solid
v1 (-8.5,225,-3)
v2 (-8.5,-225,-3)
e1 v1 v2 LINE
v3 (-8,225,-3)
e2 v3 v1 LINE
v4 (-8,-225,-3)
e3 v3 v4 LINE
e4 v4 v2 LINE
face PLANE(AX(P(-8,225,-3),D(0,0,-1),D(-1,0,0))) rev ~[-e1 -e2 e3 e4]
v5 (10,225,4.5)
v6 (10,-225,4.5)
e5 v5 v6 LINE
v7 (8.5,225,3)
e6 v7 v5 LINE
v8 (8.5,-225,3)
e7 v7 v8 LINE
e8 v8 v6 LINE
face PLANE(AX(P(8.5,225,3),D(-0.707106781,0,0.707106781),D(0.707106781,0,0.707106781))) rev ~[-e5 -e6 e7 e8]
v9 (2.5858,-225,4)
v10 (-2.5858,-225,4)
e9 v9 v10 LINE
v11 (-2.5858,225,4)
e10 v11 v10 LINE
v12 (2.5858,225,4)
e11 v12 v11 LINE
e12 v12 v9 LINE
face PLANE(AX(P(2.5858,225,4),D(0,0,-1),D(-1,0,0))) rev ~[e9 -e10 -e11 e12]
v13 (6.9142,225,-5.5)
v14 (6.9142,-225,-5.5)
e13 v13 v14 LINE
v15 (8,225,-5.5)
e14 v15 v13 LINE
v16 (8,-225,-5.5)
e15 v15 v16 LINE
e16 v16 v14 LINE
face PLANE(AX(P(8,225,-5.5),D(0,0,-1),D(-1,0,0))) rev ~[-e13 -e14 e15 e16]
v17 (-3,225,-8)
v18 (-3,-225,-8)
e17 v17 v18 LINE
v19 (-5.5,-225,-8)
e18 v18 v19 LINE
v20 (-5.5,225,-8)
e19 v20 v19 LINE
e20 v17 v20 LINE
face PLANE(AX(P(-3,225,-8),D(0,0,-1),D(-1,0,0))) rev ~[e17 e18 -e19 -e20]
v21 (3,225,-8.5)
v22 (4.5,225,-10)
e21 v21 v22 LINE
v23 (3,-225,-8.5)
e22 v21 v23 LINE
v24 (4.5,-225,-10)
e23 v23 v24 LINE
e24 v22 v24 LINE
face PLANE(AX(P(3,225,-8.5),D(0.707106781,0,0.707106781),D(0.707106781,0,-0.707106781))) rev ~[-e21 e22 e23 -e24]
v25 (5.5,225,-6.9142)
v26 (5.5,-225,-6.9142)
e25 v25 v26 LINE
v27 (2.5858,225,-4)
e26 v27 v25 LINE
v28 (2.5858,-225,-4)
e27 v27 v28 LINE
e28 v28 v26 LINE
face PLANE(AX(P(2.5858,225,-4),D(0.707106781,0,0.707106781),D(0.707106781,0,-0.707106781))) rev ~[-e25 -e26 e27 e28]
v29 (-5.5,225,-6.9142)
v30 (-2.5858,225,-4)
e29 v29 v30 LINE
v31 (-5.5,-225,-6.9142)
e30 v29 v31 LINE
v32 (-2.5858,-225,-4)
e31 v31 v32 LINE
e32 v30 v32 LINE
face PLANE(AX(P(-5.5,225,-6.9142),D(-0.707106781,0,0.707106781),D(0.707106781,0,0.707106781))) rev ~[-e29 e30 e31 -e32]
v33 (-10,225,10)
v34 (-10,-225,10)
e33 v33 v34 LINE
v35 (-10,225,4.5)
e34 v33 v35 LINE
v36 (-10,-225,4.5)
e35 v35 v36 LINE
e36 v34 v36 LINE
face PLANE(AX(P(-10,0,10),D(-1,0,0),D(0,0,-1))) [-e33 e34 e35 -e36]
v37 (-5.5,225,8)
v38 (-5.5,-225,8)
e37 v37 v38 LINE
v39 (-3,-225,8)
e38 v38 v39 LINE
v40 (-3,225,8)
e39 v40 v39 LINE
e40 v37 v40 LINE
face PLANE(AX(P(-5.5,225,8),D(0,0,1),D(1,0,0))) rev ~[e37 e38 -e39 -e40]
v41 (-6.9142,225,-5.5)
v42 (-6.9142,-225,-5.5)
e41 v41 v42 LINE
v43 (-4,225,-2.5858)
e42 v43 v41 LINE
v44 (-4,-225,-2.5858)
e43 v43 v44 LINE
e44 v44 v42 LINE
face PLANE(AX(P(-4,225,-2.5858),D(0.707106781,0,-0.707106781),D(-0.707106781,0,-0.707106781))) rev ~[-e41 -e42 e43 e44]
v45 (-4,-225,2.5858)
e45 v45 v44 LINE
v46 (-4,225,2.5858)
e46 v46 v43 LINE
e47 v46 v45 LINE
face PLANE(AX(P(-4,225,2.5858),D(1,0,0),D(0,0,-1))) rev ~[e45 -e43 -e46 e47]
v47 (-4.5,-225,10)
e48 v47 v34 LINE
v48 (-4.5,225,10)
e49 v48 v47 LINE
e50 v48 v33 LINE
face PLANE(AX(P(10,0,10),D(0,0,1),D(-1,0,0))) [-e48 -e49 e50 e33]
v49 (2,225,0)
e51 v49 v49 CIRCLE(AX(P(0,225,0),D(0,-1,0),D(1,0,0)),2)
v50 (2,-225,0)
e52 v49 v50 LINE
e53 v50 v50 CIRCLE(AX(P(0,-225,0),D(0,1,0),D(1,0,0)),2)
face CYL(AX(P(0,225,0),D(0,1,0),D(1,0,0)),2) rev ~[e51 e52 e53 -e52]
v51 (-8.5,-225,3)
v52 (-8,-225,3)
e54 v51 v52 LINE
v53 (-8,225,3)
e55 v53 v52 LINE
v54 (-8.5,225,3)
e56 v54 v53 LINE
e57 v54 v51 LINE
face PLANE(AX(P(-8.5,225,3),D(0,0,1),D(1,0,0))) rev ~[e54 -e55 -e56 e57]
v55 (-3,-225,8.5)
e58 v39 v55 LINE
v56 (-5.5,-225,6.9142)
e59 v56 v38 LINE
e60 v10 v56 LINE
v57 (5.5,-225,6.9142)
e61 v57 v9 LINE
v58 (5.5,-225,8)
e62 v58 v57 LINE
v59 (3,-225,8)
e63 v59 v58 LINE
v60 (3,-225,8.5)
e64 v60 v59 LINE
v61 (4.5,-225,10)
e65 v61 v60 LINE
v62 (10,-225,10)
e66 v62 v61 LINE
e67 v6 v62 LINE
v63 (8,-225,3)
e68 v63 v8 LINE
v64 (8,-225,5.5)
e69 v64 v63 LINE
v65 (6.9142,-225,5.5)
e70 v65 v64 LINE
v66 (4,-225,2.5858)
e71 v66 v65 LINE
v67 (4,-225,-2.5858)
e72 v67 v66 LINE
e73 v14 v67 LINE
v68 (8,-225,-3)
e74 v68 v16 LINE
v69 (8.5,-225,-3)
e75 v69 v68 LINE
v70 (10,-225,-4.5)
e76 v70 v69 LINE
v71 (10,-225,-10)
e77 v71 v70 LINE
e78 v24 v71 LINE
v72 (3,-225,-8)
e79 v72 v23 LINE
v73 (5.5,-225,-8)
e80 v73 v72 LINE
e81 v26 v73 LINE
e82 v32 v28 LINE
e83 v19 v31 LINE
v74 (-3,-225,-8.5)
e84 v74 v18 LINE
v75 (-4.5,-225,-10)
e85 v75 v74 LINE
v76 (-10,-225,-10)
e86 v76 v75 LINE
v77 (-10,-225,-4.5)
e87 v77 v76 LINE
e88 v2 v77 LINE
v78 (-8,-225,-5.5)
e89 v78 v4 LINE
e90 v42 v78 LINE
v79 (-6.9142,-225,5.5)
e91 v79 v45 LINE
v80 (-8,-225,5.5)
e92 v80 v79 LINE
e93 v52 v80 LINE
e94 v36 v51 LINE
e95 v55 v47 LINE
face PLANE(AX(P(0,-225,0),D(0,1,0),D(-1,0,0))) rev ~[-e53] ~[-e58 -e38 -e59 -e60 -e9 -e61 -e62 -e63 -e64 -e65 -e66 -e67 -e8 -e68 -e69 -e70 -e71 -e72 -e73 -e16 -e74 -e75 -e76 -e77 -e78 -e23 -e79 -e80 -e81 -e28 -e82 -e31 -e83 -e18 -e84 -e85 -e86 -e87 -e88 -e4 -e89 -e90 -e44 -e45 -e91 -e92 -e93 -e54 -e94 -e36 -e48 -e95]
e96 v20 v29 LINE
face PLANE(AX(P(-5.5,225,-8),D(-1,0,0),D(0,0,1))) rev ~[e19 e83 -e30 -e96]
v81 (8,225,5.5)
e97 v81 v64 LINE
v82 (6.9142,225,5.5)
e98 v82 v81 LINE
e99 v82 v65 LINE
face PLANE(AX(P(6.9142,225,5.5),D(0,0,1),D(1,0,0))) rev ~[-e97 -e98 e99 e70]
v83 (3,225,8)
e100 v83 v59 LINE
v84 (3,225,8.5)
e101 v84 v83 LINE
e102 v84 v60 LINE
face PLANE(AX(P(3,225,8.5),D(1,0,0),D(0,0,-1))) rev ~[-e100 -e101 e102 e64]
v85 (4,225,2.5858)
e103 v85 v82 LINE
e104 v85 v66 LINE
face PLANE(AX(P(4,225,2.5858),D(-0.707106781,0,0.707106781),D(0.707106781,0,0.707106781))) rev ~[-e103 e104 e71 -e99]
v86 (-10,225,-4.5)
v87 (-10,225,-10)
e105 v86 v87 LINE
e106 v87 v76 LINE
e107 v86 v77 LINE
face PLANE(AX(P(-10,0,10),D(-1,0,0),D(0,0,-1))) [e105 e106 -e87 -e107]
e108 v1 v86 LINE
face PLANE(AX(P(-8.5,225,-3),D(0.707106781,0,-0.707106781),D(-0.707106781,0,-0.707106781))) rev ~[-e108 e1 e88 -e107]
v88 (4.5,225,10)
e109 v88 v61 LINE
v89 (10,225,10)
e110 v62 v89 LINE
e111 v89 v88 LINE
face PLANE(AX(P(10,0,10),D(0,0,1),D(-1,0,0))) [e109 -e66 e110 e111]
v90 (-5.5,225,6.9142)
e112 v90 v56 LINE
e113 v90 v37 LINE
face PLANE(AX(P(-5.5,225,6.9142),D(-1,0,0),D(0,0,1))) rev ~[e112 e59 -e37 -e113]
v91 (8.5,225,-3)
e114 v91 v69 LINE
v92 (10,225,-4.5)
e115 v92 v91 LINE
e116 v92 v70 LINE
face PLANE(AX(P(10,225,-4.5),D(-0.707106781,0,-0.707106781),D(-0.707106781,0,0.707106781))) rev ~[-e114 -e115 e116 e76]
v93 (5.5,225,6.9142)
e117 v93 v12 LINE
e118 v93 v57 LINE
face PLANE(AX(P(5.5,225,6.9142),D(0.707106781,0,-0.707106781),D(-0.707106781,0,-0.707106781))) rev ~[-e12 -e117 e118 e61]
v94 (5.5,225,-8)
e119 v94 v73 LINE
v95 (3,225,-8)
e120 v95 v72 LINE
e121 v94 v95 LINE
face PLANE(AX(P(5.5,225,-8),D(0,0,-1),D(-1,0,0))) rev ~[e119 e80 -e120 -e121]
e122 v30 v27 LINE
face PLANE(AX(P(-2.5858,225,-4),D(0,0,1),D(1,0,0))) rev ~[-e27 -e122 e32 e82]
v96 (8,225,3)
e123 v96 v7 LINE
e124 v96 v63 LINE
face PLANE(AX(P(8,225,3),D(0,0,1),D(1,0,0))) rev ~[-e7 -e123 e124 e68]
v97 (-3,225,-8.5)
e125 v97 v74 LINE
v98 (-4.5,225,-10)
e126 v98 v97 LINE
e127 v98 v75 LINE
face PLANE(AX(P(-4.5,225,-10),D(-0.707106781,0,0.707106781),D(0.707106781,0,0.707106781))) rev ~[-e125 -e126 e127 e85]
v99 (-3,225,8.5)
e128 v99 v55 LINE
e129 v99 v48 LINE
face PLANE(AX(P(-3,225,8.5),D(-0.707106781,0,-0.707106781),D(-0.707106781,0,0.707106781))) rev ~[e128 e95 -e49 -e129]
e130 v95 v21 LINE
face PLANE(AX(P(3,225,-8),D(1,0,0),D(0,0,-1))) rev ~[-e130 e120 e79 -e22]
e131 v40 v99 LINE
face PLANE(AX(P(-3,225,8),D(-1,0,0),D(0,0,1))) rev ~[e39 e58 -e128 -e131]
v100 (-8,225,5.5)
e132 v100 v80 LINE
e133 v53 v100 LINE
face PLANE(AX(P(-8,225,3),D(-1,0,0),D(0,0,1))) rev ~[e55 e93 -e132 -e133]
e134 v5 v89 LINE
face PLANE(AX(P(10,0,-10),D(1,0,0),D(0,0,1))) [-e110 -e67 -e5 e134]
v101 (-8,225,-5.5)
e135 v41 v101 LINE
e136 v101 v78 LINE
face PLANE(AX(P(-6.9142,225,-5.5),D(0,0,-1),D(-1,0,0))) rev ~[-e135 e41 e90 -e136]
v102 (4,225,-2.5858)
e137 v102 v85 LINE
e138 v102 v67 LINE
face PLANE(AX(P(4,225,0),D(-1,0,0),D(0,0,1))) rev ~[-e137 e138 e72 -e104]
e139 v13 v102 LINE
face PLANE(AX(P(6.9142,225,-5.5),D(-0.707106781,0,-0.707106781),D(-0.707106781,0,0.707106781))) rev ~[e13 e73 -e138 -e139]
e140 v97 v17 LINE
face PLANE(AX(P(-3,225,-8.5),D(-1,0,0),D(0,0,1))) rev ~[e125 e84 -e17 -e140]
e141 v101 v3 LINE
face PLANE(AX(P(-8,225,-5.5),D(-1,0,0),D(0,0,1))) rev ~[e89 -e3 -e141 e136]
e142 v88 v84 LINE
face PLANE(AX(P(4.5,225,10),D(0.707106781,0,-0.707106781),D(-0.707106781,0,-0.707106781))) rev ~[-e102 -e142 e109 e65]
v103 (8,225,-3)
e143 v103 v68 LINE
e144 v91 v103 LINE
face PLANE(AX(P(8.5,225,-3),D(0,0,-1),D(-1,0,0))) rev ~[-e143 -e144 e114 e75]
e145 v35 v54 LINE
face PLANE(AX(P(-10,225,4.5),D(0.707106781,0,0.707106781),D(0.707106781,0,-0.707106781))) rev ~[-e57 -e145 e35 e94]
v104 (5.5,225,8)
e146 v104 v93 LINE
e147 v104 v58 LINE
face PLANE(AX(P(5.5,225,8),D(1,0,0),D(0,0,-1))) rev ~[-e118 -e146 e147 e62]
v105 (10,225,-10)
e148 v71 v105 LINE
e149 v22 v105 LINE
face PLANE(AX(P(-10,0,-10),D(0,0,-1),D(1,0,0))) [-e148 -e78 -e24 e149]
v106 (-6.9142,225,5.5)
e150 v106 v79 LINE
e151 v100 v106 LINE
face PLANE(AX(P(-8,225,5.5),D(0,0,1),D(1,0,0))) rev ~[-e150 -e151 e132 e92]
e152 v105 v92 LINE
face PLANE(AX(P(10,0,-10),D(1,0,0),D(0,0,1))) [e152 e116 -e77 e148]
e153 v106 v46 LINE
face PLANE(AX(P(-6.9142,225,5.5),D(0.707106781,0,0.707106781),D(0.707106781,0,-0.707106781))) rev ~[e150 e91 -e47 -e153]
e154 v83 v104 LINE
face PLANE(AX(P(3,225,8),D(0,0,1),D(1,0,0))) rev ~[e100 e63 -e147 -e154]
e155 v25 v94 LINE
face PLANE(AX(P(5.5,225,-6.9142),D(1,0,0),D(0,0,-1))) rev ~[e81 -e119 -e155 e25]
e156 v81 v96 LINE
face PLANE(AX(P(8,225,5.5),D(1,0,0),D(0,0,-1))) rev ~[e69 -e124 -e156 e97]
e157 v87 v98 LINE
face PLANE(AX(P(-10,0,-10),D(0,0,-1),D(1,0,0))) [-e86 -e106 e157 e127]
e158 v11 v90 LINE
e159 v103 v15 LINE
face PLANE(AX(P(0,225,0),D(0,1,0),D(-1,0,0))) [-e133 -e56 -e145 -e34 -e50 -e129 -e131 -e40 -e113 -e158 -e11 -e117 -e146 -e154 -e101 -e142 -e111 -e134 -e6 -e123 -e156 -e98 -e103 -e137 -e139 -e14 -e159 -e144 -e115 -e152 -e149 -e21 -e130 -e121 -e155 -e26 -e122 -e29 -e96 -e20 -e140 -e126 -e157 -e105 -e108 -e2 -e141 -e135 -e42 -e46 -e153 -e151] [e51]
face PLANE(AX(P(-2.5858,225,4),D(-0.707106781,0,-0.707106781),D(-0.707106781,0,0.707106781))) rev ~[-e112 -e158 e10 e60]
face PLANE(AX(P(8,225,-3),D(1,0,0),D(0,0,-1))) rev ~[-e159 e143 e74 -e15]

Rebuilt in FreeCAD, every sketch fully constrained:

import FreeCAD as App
import Part
import Sketcher
from FreeCAD import Vector
Q = App.Units.Quantity

doc = App.newDocument("Part")
params = doc.addObject("Spreadsheet::Sheet", "Params")
for row, (alias, value) in enumerate([
    ("sketch1_width", "20 mm"),
    ("pad1_length", "450 mm"),
    ("sketch2_diameter", "4 mm"),
    ("sketch2_width", "9 mm"),
    ("sketch2_width2", "2.5 mm"),
], start=1):
    params.set(f"A{row}", alias)
    params.set(f"B{row}", "=" + value)
    params.setAlias(f"B{row}", alias)

body = doc.addObject("PartDesign::Body", "Body")

# Sketch on XZ plane
sketch1 = body.newObject("Sketcher::SketchObject", "Sketch")
sketch1.AttachmentSupport = (doc.getObject("XZ_Plane"), [""])
sketch1.MapMode = "FlatFace"
sketch1.addGeometry([
    Part.LineSegment(Vector(-10, 10, 0), Vector(10, 10, 0)),
    Part.LineSegment(Vector(10, 10, 0), Vector(10, -10, 0)),
    Part.LineSegment(Vector(10, -10, 0), Vector(-10, -10, 0)),
    Part.LineSegment(Vector(-10, -10, 0), Vector(-10, 10, 0)),
], False)
sketch1.addConstraint([
    Sketcher.Constraint("Coincident", 0, 2, 1, 1),
    Sketcher.Constraint("Coincident", 1, 2, 2, 1),
    Sketcher.Constraint("Coincident", 2, 2, 3, 1),
    Sketcher.Constraint("Coincident", 3, 2, 0, 1),
    Sketcher.Constraint("Horizontal", 0),
    Sketcher.Constraint("Vertical", 1),
    Sketcher.Constraint("Horizontal", 2),
    Sketcher.Constraint("Vertical", 3),
    Sketcher.Constraint("Symmetric", 0, 2, 2, 2, -1, 1),
    Sketcher.Constraint("Equal", 2, 1),
    Sketcher.Constraint("DistanceX", 0, 1, 0, 2, Q("20 mm")),
])
sketch1.setExpression("Constraints[10]", "Params.sketch1_width")
pad1 = body.newObject("PartDesign::Pad", "Pad")
pad1.Profile = sketch1
pad1.setExpression("Length", "Params.pad1_length")
pad1.Midplane = True

# Sketch on XZ plane
sketch2 = body.newObject("Sketcher::SketchObject", "Sketch001")
sketch2.AttachmentSupport = (doc.getObject("XZ_Plane"), [""])
sketch2.MapMode = "FlatFace"
sketch2.AttachmentOffset = App.Placement(Vector(0, 0, -225), App.Rotation())
sketch2.addGeometry([
    Part.LineSegment(Vector(-3, 8.5, 0), Vector(-4.5, 10, 0)),  # 0
    Part.LineSegment(Vector(-4.5, 10, 0), Vector(4.5, 10, 0)),  # 1
    Part.LineSegment(Vector(4.5, 10, 0), Vector(3, 8.5, 0)),  # 2
    Part.LineSegment(Vector(3, 8.5, 0), Vector(3, 8, 0)),  # 3
    Part.LineSegment(Vector(3, 8, 0), Vector(5.5, 8, 0)),  # 4
    Part.LineSegment(Vector(5.5, 8, 0), Vector(5.5, 6.9142, 0)),  # 5
    Part.LineSegment(Vector(5.5, 6.9142, 0), Vector(2.5858, 4, 0)),  # 6
    Part.LineSegment(Vector(2.5858, 4, 0), Vector(-2.5858, 4, 0)),  # 7
    Part.LineSegment(Vector(-2.5858, 4, 0), Vector(-5.5, 6.9142, 0)),  # 8
    Part.LineSegment(Vector(-5.5, 6.9142, 0), Vector(-5.5, 8, 0)),  # 9
    Part.LineSegment(Vector(-5.5, 8, 0), Vector(-3, 8, 0)),  # 10
    Part.LineSegment(Vector(-3, 8, 0), Vector(-3, 8.5, 0)),  # 11
    Part.LineSegment(Vector(-10, 4.5, 0), Vector(-8.5, 3, 0)),  # 12
    Part.LineSegment(Vector(-8.5, 3, 0), Vector(-8, 3, 0)),  # 13
    Part.LineSegment(Vector(-8, 3, 0), Vector(-8, 5.5, 0)),  # 14
    Part.LineSegment(Vector(-8, 5.5, 0), Vector(-6.9142, 5.5, 0)),  # 15
    Part.LineSegment(Vector(-6.9142, 5.5, 0), Vector(-4, 2.5858, 0)),  # 16
    Part.LineSegment(Vector(-4, 2.5858, 0), Vector(-4, -2.5858, 0)),  # 17
    Part.LineSegment(Vector(-4, -2.5858, 0), Vector(-6.9142, -5.5, 0)),  # 18
    Part.LineSegment(Vector(-6.9142, -5.5, 0), Vector(-8, -5.5, 0)),  # 19
    Part.LineSegment(Vector(-8, -5.5, 0), Vector(-8, -3, 0)),  # 20
    Part.LineSegment(Vector(-8, -3, 0), Vector(-8.5, -3, 0)),  # 21
    Part.LineSegment(Vector(-8.5, -3, 0), Vector(-10, -4.5, 0)),  # 22
    Part.LineSegment(Vector(-10, -4.5, 0), Vector(-10, 4.5, 0)),  # 23
    Part.LineSegment(Vector(8.5, 3, 0), Vector(10, 4.5, 0)),  # 24
    Part.LineSegment(Vector(10, 4.5, 0), Vector(10, -4.5, 0)),  # 25
    Part.LineSegment(Vector(10, -4.5, 0), Vector(8.5, -3, 0)),  # 26
    Part.LineSegment(Vector(8.5, -3, 0), Vector(8, -3, 0)),  # 27
    Part.LineSegment(Vector(8, -3, 0), Vector(8, -5.5, 0)),  # 28
    Part.LineSegment(Vector(8, -5.5, 0), Vector(6.9142, -5.5, 0)),  # 29
    Part.LineSegment(Vector(6.9142, -5.5, 0), Vector(4, -2.5858, 0)),  # 30
    Part.LineSegment(Vector(4, -2.5858, 0), Vector(4, 2.5858, 0)),  # 31
    Part.LineSegment(Vector(4, 2.5858, 0), Vector(6.9142, 5.5, 0)),  # 32
    Part.LineSegment(Vector(6.9142, 5.5, 0), Vector(8, 5.5, 0)),  # 33
    Part.LineSegment(Vector(8, 5.5, 0), Vector(8, 3, 0)),  # 34
    Part.LineSegment(Vector(8, 3, 0), Vector(8.5, 3, 0)),  # 35
    Part.Circle(Vector(0, 0, 0), Vector(0, 0, 1), 2),  # 36
    Part.LineSegment(Vector(4.5, -10, 0), Vector(-4.5, -10, 0)),  # 37
    Part.LineSegment(Vector(-4.5, -10, 0), Vector(-3, -8.5, 0)),  # 38
    Part.LineSegment(Vector(-3, -8.5, 0), Vector(-3, -8, 0)),  # 39
    Part.LineSegment(Vector(-3, -8, 0), Vector(-5.5, -8, 0)),  # 40
    Part.LineSegment(Vector(-5.5, -8, 0), Vector(-5.5, -6.9142, 0)),  # 41
    Part.LineSegment(Vector(-5.5, -6.9142, 0), Vector(-2.5858, -4, 0)),  # 42
    Part.LineSegment(Vector(-2.5858, -4, 0), Vector(2.5858, -4, 0)),  # 43
    Part.LineSegment(Vector(2.5858, -4, 0), Vector(5.5, -6.9142, 0)),  # 44
    Part.LineSegment(Vector(5.5, -6.9142, 0), Vector(5.5, -8, 0)),  # 45
    Part.LineSegment(Vector(5.5, -8, 0), Vector(3, -8, 0)),  # 46
    Part.LineSegment(Vector(3, -8, 0), Vector(3, -8.5, 0)),  # 47
    Part.LineSegment(Vector(3, -8.5, 0), Vector(4.5, -10, 0)),  # 48
], False)
sketch2.addConstraint([
    Sketcher.Constraint("Coincident", 0, 2, 1, 1),
    Sketcher.Constraint("Coincident", 1, 2, 2, 1),
    Sketcher.Constraint("Coincident", 2, 2, 3, 1),
    Sketcher.Constraint("Coincident", 3, 2, 4, 1),
    Sketcher.Constraint("Coincident", 4, 2, 5, 1),
    Sketcher.Constraint("Coincident", 5, 2, 6, 1),
    Sketcher.Constraint("Coincident", 6, 2, 7, 1),
    Sketcher.Constraint("Coincident", 7, 2, 8, 1),
    Sketcher.Constraint("Coincident", 8, 2, 9, 1),
    Sketcher.Constraint("Coincident", 9, 2, 10, 1),
    Sketcher.Constraint("Coincident", 10, 2, 11, 1),
    Sketcher.Constraint("Coincident", 11, 2, 0, 1),
    Sketcher.Constraint("Coincident", 12, 2, 13, 1),
    Sketcher.Constraint("Coincident", 13, 2, 14, 1),
    Sketcher.Constraint("Coincident", 14, 2, 15, 1),
    Sketcher.Constraint("Coincident", 15, 2, 16, 1),
    Sketcher.Constraint("Coincident", 16, 2, 17, 1),
    Sketcher.Constraint("Coincident", 17, 2, 18, 1),
    Sketcher.Constraint("Coincident", 18, 2, 19, 1),
    Sketcher.Constraint("Coincident", 19, 2, 20, 1),
    Sketcher.Constraint("Coincident", 20, 2, 21, 1),
    Sketcher.Constraint("Coincident", 21, 2, 22, 1),
    Sketcher.Constraint("Coincident", 22, 2, 23, 1),
    Sketcher.Constraint("Coincident", 23, 2, 12, 1),
    Sketcher.Constraint("Coincident", 24, 2, 25, 1),
    Sketcher.Constraint("Coincident", 25, 2, 26, 1),
    Sketcher.Constraint("Coincident", 26, 2, 27, 1),
    Sketcher.Constraint("Coincident", 27, 2, 28, 1),
    Sketcher.Constraint("Coincident", 28, 2, 29, 1),
    Sketcher.Constraint("Coincident", 29, 2, 30, 1),
    Sketcher.Constraint("Coincident", 30, 2, 31, 1),
    Sketcher.Constraint("Coincident", 31, 2, 32, 1),
    Sketcher.Constraint("Coincident", 32, 2, 33, 1),
    Sketcher.Constraint("Coincident", 33, 2, 34, 1),
    Sketcher.Constraint("Coincident", 34, 2, 35, 1),
    Sketcher.Constraint("Coincident", 35, 2, 24, 1),
    Sketcher.Constraint("Coincident", 37, 2, 38, 1),
    Sketcher.Constraint("Coincident", 38, 2, 39, 1),
    Sketcher.Constraint("Coincident", 39, 2, 40, 1),
    Sketcher.Constraint("Coincident", 40, 2, 41, 1),
    Sketcher.Constraint("Coincident", 41, 2, 42, 1),
    Sketcher.Constraint("Coincident", 42, 2, 43, 1),
    Sketcher.Constraint("Coincident", 43, 2, 44, 1),
    Sketcher.Constraint("Coincident", 44, 2, 45, 1),
    Sketcher.Constraint("Coincident", 45, 2, 46, 1),
    Sketcher.Constraint("Coincident", 46, 2, 47, 1),
    Sketcher.Constraint("Coincident", 47, 2, 48, 1),
    Sketcher.Constraint("Coincident", 48, 2, 37, 1),
    Sketcher.Constraint("Horizontal", 1),
    Sketcher.Constraint("Vertical", 3),
    Sketcher.Constraint("Horizontal", 4),
    Sketcher.Constraint("Vertical", 5),
    Sketcher.Constraint("Horizontal", 7),
    Sketcher.Constraint("Vertical", 9),
    Sketcher.Constraint("Horizontal", 10),
    Sketcher.Constraint("Vertical", 11),
    Sketcher.Constraint("Horizontal", 13),
    Sketcher.Constraint("Vertical", 14),
    Sketcher.Constraint("Horizontal", 15),
    Sketcher.Constraint("Vertical", 17),
    Sketcher.Constraint("Horizontal", 19),
    Sketcher.Constraint("Vertical", 20),
    Sketcher.Constraint("Horizontal", 21),
    Sketcher.Constraint("Vertical", 23),
    Sketcher.Constraint("Vertical", 25),
    Sketcher.Constraint("Horizontal", 27),
    Sketcher.Constraint("Vertical", 28),
    Sketcher.Constraint("Horizontal", 29),
    Sketcher.Constraint("Vertical", 31),
    Sketcher.Constraint("Horizontal", 33),
    Sketcher.Constraint("Vertical", 34),
    Sketcher.Constraint("Horizontal", 35),
    Sketcher.Constraint("Horizontal", 37),
    Sketcher.Constraint("Vertical", 39),
    Sketcher.Constraint("Horizontal", 40),
    Sketcher.Constraint("Vertical", 41),
    Sketcher.Constraint("Horizontal", 43),
    Sketcher.Constraint("Vertical", 45),
    Sketcher.Constraint("Horizontal", 46),
    Sketcher.Constraint("Vertical", 47),
    Sketcher.Constraint("Coincident", 36, 3, -1, 1),
    Sketcher.Constraint("Symmetric", 22, 2, 24, 2, -1, 1),
    Sketcher.Constraint("Symmetric", 12, 2, 26, 2, -1, 1),
    Sketcher.Constraint("Symmetric", 14, 2, 28, 2, -1, 1),
    Sketcher.Constraint("Symmetric", 16, 2, 30, 2, -1, 1),
    Sketcher.Constraint("Symmetric", 18, 2, 32, 2, -1, 1),
    Sketcher.Constraint("Symmetric", 20, 2, 34, 2, -1, 1),
    Sketcher.Constraint("Symmetric", 1, 2, 37, 2, -1, 1),
    Sketcher.Constraint("Symmetric", 2, 2, 38, 2, -1, 1),
    Sketcher.Constraint("Symmetric", 4, 2, 40, 2, -1, 1),
    Sketcher.Constraint("Symmetric", 6, 2, 42, 2, -1, 1),
    Sketcher.Constraint("Symmetric", 8, 2, 44, 2, -1, 1),
    Sketcher.Constraint("Symmetric", 10, 2, 46, 2, -1, 1),
    Sketcher.Constraint("Symmetric", 5, 2, 8, 2, -2),
    Sketcher.Constraint("Symmetric", 3, 2, 10, 2, -2),
    Sketcher.Constraint("Symmetric", 21, 2, 26, 2, -2),
    Sketcher.Constraint("Symmetric", 19, 2, 28, 2, -2),
    Sketcher.Constraint("Perpendicular", 0, 2),
    Sketcher.Constraint("Parallel", 2, 6),
    Sketcher.Constraint("Perpendicular", 6, 8),
    Sketcher.Constraint("Parallel", 8, 12),
    Sketcher.Constraint("Parallel", 12, 16),
    Sketcher.Constraint("Perpendicular", 16, 18),
    Sketcher.Constraint("Parallel", 18, 22),
    Sketcher.Constraint("Parallel", 22, 24),
    Sketcher.Constraint("Perpendicular", 24, 26),
    Sketcher.Constraint("Parallel", 26, 30),
    Sketcher.Constraint("Perpendicular", 30, 32),
    Sketcher.Constraint("Parallel", 38, 42),
    Sketcher.Constraint("Perpendicular", 42, 44),
    Sketcher.Constraint("Parallel", 44, 48),
    Sketcher.Constraint("Horizontal", 2, 2, 11, 2),
    Sketcher.Constraint("Horizontal", 23, 2, 24, 2),
    Sketcher.Constraint("Horizontal", 17, 2, 30, 2),
    Sketcher.Constraint("Horizontal", 38, 2, 47, 2),
    Sketcher.Constraint("Equal", 35, 3),
    Sketcher.Constraint("Equal", 33, 5),
    Sketcher.Constraint("Equal", 46, 14),
    Sketcher.Constraint("Equal", 43, 17),
    Sketcher.Constraint("Equal", 37, 23),
    Sketcher.Constraint("Equal", 2, 12),
    Sketcher.Constraint("Diameter", 36, Q("4 mm")),
    Sketcher.Constraint("DistanceX", 1, 1, 1, 2, Q("9 mm")),
    Sketcher.Constraint("DistanceY", -1, 1, 3, 2, Q("8 mm")),
    Sketcher.Constraint("DistanceY", -1, 1, 6, 2, Q("4 mm")),
    Sketcher.Constraint("DistanceX", 13, 2, -1, 1, Q("8 mm")),
    Sketcher.Constraint("DistanceY", 3, 2, 1, 2, Q("2 mm")),
    Sketcher.Constraint("DistanceX", 10, 2, 3, 2, Q("6 mm")),
    Sketcher.Constraint("DistanceX", 4, 1, 4, 2, Q("2.5 mm")),
    Sketcher.Constraint("DistanceX", 7, 2, 7, 1, Q("5.1716 mm")),
])
sketch2.setExpression("Constraints[121]", "Params.sketch2_diameter")
sketch2.setExpression("Constraints[122]", "Params.sketch2_width")
sketch2.setExpression("Constraints[128]", "Params.sketch2_width2")
pocket1 = body.newObject("PartDesign::Pocket", "Pocket")
pocket1.Profile = sketch2
pocket1.Type = "ThroughAll"
pocket1.Midplane = True

doc.recompute()
